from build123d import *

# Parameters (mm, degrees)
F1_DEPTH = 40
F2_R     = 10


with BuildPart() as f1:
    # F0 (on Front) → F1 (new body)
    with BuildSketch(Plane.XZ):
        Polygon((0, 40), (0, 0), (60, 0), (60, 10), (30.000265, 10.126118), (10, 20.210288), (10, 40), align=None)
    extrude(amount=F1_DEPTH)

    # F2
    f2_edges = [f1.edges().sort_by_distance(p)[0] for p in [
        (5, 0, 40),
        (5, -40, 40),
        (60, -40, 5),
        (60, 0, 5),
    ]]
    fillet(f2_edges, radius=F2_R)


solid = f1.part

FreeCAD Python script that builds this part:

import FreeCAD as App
import Part
import Sketcher

V = App.Vector
Q = App.Units.Quantity


def edges_at(feature, points):
    """Names of the edges that pass closest to the given points."""
    edges = feature.Shape.Edges
    near = lambda p: min(range(len(edges)), key=lambda i: edges[i].distToShape(Part.Vertex(*p))[0])
    return sorted({f"Edge{near(p) + 1}" for p in points})

doc = App.newDocument("Part")
params = doc.addObject("Spreadsheet::Sheet", "Params")
for row, (alias, value) in enumerate([
    ("sketch1_width", "60 mm"),
    ("sketch1_width2", "10 mm"),
    ("sketch1_height", "40 mm"),
    ("sketch1_length", "30 mm"),
    ("pad1_length", "40 mm"),
    ("fillet_radius", "10 mm"),
], start=1):
    params.set(f"A{row}", alias)
    params.set(f"B{row}", "=" + value)
    params.setAlias(f"B{row}", alias)

body = doc.addObject("PartDesign::Body", "Body")

# Sketch on XZ plane
sketch1 = body.newObject("Sketcher::SketchObject", "Sketch")
sketch1.AttachmentSupport = (doc.getObject("XZ_Plane"), [""])
sketch1.MapMode = "FlatFace"
sketch1.addGeometry([
    Part.LineSegment(V(0, 40, 0), V(0, 0, 0)),  # 0
    Part.LineSegment(V(0, 0, 0), V(60, 0, 0)),  # 1
    Part.LineSegment(V(60, 0, 0), V(60, 10, 0)),  # 2
    Part.LineSegment(V(60, 10, 0), V(30, 10, 0)),  # 3
    Part.LineSegment(V(30, 10, 0), V(10, 20, 0)),  # 4
    Part.LineSegment(V(10, 20, 0), V(10, 40, 0)),  # 5
    Part.LineSegment(V(10, 40, 0), V(0, 40, 0)),  # 6
], False)
sketch1.addConstraint([
    Sketcher.Constraint("Coincident", 0, 2, 1, 1),
    Sketcher.Constraint("Coincident", 1, 2, 2, 1),
    Sketcher.Constraint("Coincident", 2, 2, 3, 1),
    Sketcher.Constraint("Coincident", 3, 2, 4, 1),
    Sketcher.Constraint("Coincident", 4, 2, 5, 1),
    Sketcher.Constraint("Coincident", 5, 2, 6, 1),
    Sketcher.Constraint("Coincident", 6, 2, 0, 1),
    Sketcher.Constraint("Vertical", 0),
    Sketcher.Constraint("Horizontal", 1),
    Sketcher.Constraint("Vertical", 2),
    Sketcher.Constraint("Vertical", 5),
    Sketcher.Constraint("Horizontal", 6),
    Sketcher.Constraint("Coincident", 0, 2, -1, 1),
    Sketcher.Constraint("Equal", 6, 2),
    Sketcher.Constraint("DistanceX", 1, 1, 1, 2, Q("60 mm")),
    Sketcher.Constraint("DistanceX", 6, 2, 6, 1, Q("10 mm")),
    Sketcher.Constraint("DistanceY", 0, 2, 0, 1, Q("40 mm")),
    Sketcher.Constraint("Distance", 3, Q("30 mm")),
    Sketcher.Constraint("DistanceY", 5, 1, 5, 2, Q("19.789712 mm")),
    Sketcher.Constraint("DistanceY", 3, 2, 4, 2, Q("10.08417 mm")),
])
sketch1.setExpression("Constraints[14]", "Params.sketch1_width")
sketch1.setExpression("Constraints[15]", "Params.sketch1_width2")
sketch1.setExpression("Constraints[16]", "Params.sketch1_height")
sketch1.setExpression("Constraints[17]", "Params.sketch1_length")
pad1 = body.newObject("PartDesign::Pad", "Pad")
pad1.Profile = sketch1
pad1.setExpression("Length", "Params.pad1_length")
doc.recompute()

fillet = body.newObject("PartDesign::Fillet", "Fillet")
fillet.Base = (pad1, edges_at(pad1, [
    (5, 0, 40),
    (5, -40, 40),
    (60, -40, 5),
    (60, 0, 5),
]))
fillet.setExpression("Radius", "Params.fillet_radius")

doc.recompute()
